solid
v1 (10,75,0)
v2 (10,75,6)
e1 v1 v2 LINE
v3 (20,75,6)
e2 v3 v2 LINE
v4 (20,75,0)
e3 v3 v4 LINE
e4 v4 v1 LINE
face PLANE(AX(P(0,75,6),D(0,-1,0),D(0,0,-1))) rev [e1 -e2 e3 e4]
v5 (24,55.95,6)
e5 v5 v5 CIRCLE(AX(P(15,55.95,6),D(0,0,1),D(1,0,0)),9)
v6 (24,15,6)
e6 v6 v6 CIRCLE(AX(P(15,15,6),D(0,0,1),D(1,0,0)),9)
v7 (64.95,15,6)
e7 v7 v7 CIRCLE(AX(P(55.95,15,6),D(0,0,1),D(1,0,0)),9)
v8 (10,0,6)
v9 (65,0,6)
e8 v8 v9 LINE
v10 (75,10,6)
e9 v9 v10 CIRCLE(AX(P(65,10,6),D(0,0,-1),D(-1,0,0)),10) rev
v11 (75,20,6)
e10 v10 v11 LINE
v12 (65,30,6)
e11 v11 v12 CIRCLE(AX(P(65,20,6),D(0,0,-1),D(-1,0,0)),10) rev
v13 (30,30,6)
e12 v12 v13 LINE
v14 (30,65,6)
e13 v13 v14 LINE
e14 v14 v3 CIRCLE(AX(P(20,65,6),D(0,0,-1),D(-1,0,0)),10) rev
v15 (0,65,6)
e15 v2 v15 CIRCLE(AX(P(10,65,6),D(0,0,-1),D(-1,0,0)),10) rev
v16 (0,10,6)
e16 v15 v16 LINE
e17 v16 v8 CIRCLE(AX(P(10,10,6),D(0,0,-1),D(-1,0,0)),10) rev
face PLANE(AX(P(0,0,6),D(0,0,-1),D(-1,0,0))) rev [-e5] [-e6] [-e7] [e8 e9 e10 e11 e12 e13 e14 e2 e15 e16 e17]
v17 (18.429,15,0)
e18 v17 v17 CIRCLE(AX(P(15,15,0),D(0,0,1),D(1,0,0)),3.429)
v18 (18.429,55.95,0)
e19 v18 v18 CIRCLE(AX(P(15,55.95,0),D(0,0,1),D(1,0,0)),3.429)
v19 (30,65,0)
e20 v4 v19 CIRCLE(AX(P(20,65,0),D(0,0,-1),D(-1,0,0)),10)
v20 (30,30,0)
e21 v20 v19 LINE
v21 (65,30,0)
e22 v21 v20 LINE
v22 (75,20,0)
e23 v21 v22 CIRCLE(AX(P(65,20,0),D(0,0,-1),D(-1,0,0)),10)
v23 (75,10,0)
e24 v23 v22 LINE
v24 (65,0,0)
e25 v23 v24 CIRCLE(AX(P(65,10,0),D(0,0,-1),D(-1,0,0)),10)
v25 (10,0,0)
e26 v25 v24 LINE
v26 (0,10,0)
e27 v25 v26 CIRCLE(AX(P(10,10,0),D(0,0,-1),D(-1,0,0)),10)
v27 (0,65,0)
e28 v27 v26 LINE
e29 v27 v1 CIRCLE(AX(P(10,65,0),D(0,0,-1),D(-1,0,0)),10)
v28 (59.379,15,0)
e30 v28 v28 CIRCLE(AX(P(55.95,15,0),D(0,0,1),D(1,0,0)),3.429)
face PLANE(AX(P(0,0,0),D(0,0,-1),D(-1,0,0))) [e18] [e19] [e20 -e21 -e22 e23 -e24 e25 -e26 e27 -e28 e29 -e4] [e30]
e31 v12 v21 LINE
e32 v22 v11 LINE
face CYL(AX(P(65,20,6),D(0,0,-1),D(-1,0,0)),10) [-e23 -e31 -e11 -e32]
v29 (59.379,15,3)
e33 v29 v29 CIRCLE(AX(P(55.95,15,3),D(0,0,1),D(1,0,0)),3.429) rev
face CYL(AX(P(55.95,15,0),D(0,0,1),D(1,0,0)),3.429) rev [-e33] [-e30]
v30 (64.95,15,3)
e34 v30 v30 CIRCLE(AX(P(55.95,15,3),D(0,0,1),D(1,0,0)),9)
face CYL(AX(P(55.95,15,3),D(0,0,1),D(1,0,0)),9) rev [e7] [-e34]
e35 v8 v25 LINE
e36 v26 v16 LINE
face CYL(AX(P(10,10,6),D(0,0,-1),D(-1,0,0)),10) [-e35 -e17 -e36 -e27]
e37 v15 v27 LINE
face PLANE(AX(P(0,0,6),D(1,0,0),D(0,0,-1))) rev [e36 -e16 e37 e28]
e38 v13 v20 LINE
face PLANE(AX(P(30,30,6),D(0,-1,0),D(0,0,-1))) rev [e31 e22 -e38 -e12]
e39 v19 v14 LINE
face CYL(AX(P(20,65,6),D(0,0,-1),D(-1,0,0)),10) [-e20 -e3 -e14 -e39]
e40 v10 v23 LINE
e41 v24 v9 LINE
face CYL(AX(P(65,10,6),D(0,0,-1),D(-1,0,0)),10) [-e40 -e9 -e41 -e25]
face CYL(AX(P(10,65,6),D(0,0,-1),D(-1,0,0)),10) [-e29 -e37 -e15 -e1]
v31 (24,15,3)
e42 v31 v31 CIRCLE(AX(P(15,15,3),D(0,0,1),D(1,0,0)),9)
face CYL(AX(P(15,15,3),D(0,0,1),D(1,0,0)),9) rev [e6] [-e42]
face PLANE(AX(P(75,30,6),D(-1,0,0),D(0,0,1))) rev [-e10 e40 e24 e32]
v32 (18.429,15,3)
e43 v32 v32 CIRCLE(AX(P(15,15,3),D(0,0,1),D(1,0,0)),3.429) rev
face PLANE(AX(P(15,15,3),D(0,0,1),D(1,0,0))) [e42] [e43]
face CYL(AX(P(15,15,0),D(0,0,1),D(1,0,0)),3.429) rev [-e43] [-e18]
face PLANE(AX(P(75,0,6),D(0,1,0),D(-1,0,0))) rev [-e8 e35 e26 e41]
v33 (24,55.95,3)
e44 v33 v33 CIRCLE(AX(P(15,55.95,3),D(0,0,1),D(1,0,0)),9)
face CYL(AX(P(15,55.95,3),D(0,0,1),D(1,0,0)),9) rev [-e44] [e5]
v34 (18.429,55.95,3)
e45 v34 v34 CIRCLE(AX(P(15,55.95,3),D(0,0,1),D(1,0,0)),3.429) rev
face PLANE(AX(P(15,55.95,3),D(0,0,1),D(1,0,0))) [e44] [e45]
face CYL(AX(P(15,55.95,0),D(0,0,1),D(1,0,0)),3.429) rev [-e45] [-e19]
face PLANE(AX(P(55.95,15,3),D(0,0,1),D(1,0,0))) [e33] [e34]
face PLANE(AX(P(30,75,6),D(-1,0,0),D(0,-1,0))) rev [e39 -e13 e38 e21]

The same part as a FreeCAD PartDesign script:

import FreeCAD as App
import Part
import Sketcher
from FreeCAD import Vector


def edges_at(feature, points):
    """Names of the edges that pass closest to the given points."""
    edges = feature.Shape.Edges
    near = lambda p: min(range(len(edges)), key=lambda i: edges[i].distToShape(Part.Vertex(*p))[0])
    return sorted({f"Edge{near(p) + 1}" for p in points})


def add_polygon(sketch, points):
    """Adds a closed chain of lines whose ends are joined by coincident constraints."""
    first, n = sketch.GeometryCount, len(points)
    for a, b in zip(points, points[1:] + points[:1]):
        sketch.addGeometry(Part.LineSegment(App.Vector(*a, 0), App.Vector(*b, 0)), False)
    for i in range(n):
        sketch.addConstraint(Sketcher.Constraint("Coincident", first + i, 2, first + (i + 1) % n, 1))

doc = App.newDocument("Part")
body = doc.addObject("PartDesign::Body", "Body")

sketch1 = body.newObject("Sketcher::SketchObject", "Sketch")
sketch1.AttachmentSupport = (doc.getObject("XY_Plane"), [""])
sketch1.MapMode = "FlatFace"
add_polygon(sketch1, [(0, 75), (0, 0), (75, 0), (75, 30), (30, 30), (30, 75)])
sketch1.addConstraint([
    Sketcher.Constraint("Vertical", 0),
    Sketcher.Constraint("Horizontal", 1),
    Sketcher.Constraint("Vertical", 2),
    Sketcher.Constraint("Horizontal", 3),
    Sketcher.Constraint("Vertical", 4),
    Sketcher.Constraint("Horizontal", 5),
    Sketcher.Constraint("Coincident", 0, 2, -1, 1),
    Sketcher.Constraint("Equal", 1, 0),
    Sketcher.Constraint("Equal", 5, 2),
    Sketcher.Constraint("DistanceX", 1, 1, 1, 2, 75.0),
    Sketcher.Constraint("DistanceX", 3, 2, 3, 1, 45.0),
])
pad1 = body.newObject("PartDesign::Pad", "Pad")
pad1.Profile = sketch1
pad1.Length = 6

sketch2 = body.newObject("Sketcher::SketchObject", "Sketch001")
sketch2.AttachmentSupport = (doc.getObject("XY_Plane"), [""])
sketch2.MapMode = "FlatFace"
sketch2.AttachmentOffset = App.Placement(Vector(0, 0, 6), App.Rotation())
sketch2.addGeometry([
    Part.Circle(Vector(15, 15, 0), Vector(0, 0, 1), 3.4),
    Part.Circle(Vector(15, 56, 0), Vector(0, 0, 1), 3.4),
    Part.Circle(Vector(56, 15, 0), Vector(0, 0, 1), 3.4),
], False)
sketch2.addConstraint([
    Sketcher.Constraint("Equal", 0, 1),
    Sketcher.Constraint("Equal", 1, 2),
    Sketcher.Constraint("Horizontal", 0, 3, 2, 3),
    Sketcher.Constraint("Vertical", 0, 3, 1, 3),
    Sketcher.Constraint("Diameter", 0, 6.858),
    Sketcher.Constraint("DistanceX", -1, 1, 0, 3, 15.0),
    Sketcher.Constraint("DistanceY", -1, 1, 0, 3, 15.0),
    Sketcher.Constraint("DistanceY", -1, 1, 1, 3, 55.95),
    Sketcher.Constraint("DistanceX", -1, 1, 2, 3, 55.95),
])
pocket1 = body.newObject("PartDesign::Pocket", "Pocket")
pocket1.Profile = sketch2
pocket1.Type = "ThroughAll"

sketch3 = body.newObject("Sketcher::SketchObject", "Sketch002")
sketch3.AttachmentSupport = (doc.getObject("XY_Plane"), [""])
sketch3.MapMode = "FlatFace"
sketch3.AttachmentOffset = App.Placement(Vector(0, 0, 6), App.Rotation())
sketch3.addGeometry([
    Part.Circle(Vector(56, 15, 0), Vector(0, 0, 1), 9),
    Part.Circle(Vector(15, 15, 0), Vector(0, 0, 1), 9),
    Part.Circle(Vector(15, 56, 0), Vector(0, 0, 1), 9),
], False)
sketch3.addConstraint([
    Sketcher.Constraint("Equal", 0, 1),
    Sketcher.Constraint("Equal", 1, 2),
    Sketcher.Constraint("Horizontal", 0, 3, 1, 3),
    Sketcher.Constraint("Vertical", 1, 3, 2, 3),
    Sketcher.Constraint("Diameter", 0, 18.0),
    Sketcher.Constraint("DistanceY", -1, 1, 0, 3, 15.0),
    Sketcher.Constraint("DistanceX", -1, 1, 1, 3, 15.0),
    Sketcher.Constraint("DistanceX", -1, 1, 0, 3, 55.95),
    Sketcher.Constraint("DistanceY", -1, 1, 2, 3, 55.95),
])
pocket2 = body.newObject("PartDesign::Pocket", "Pocket001")
pocket2.Profile = sketch3
pocket2.Length = 3
doc.recompute()

fillet = body.newObject("PartDesign::Fillet", "Fillet")
fillet.Base = (pocket2, edges_at(pocket2, [
    (0, 0, 3),
    (0, 75, 3),
    (30, 75, 3),
    (75, 30, 3),
    (75, 0, 3),
]))
fillet.Radius = 10

doc.recompute()
